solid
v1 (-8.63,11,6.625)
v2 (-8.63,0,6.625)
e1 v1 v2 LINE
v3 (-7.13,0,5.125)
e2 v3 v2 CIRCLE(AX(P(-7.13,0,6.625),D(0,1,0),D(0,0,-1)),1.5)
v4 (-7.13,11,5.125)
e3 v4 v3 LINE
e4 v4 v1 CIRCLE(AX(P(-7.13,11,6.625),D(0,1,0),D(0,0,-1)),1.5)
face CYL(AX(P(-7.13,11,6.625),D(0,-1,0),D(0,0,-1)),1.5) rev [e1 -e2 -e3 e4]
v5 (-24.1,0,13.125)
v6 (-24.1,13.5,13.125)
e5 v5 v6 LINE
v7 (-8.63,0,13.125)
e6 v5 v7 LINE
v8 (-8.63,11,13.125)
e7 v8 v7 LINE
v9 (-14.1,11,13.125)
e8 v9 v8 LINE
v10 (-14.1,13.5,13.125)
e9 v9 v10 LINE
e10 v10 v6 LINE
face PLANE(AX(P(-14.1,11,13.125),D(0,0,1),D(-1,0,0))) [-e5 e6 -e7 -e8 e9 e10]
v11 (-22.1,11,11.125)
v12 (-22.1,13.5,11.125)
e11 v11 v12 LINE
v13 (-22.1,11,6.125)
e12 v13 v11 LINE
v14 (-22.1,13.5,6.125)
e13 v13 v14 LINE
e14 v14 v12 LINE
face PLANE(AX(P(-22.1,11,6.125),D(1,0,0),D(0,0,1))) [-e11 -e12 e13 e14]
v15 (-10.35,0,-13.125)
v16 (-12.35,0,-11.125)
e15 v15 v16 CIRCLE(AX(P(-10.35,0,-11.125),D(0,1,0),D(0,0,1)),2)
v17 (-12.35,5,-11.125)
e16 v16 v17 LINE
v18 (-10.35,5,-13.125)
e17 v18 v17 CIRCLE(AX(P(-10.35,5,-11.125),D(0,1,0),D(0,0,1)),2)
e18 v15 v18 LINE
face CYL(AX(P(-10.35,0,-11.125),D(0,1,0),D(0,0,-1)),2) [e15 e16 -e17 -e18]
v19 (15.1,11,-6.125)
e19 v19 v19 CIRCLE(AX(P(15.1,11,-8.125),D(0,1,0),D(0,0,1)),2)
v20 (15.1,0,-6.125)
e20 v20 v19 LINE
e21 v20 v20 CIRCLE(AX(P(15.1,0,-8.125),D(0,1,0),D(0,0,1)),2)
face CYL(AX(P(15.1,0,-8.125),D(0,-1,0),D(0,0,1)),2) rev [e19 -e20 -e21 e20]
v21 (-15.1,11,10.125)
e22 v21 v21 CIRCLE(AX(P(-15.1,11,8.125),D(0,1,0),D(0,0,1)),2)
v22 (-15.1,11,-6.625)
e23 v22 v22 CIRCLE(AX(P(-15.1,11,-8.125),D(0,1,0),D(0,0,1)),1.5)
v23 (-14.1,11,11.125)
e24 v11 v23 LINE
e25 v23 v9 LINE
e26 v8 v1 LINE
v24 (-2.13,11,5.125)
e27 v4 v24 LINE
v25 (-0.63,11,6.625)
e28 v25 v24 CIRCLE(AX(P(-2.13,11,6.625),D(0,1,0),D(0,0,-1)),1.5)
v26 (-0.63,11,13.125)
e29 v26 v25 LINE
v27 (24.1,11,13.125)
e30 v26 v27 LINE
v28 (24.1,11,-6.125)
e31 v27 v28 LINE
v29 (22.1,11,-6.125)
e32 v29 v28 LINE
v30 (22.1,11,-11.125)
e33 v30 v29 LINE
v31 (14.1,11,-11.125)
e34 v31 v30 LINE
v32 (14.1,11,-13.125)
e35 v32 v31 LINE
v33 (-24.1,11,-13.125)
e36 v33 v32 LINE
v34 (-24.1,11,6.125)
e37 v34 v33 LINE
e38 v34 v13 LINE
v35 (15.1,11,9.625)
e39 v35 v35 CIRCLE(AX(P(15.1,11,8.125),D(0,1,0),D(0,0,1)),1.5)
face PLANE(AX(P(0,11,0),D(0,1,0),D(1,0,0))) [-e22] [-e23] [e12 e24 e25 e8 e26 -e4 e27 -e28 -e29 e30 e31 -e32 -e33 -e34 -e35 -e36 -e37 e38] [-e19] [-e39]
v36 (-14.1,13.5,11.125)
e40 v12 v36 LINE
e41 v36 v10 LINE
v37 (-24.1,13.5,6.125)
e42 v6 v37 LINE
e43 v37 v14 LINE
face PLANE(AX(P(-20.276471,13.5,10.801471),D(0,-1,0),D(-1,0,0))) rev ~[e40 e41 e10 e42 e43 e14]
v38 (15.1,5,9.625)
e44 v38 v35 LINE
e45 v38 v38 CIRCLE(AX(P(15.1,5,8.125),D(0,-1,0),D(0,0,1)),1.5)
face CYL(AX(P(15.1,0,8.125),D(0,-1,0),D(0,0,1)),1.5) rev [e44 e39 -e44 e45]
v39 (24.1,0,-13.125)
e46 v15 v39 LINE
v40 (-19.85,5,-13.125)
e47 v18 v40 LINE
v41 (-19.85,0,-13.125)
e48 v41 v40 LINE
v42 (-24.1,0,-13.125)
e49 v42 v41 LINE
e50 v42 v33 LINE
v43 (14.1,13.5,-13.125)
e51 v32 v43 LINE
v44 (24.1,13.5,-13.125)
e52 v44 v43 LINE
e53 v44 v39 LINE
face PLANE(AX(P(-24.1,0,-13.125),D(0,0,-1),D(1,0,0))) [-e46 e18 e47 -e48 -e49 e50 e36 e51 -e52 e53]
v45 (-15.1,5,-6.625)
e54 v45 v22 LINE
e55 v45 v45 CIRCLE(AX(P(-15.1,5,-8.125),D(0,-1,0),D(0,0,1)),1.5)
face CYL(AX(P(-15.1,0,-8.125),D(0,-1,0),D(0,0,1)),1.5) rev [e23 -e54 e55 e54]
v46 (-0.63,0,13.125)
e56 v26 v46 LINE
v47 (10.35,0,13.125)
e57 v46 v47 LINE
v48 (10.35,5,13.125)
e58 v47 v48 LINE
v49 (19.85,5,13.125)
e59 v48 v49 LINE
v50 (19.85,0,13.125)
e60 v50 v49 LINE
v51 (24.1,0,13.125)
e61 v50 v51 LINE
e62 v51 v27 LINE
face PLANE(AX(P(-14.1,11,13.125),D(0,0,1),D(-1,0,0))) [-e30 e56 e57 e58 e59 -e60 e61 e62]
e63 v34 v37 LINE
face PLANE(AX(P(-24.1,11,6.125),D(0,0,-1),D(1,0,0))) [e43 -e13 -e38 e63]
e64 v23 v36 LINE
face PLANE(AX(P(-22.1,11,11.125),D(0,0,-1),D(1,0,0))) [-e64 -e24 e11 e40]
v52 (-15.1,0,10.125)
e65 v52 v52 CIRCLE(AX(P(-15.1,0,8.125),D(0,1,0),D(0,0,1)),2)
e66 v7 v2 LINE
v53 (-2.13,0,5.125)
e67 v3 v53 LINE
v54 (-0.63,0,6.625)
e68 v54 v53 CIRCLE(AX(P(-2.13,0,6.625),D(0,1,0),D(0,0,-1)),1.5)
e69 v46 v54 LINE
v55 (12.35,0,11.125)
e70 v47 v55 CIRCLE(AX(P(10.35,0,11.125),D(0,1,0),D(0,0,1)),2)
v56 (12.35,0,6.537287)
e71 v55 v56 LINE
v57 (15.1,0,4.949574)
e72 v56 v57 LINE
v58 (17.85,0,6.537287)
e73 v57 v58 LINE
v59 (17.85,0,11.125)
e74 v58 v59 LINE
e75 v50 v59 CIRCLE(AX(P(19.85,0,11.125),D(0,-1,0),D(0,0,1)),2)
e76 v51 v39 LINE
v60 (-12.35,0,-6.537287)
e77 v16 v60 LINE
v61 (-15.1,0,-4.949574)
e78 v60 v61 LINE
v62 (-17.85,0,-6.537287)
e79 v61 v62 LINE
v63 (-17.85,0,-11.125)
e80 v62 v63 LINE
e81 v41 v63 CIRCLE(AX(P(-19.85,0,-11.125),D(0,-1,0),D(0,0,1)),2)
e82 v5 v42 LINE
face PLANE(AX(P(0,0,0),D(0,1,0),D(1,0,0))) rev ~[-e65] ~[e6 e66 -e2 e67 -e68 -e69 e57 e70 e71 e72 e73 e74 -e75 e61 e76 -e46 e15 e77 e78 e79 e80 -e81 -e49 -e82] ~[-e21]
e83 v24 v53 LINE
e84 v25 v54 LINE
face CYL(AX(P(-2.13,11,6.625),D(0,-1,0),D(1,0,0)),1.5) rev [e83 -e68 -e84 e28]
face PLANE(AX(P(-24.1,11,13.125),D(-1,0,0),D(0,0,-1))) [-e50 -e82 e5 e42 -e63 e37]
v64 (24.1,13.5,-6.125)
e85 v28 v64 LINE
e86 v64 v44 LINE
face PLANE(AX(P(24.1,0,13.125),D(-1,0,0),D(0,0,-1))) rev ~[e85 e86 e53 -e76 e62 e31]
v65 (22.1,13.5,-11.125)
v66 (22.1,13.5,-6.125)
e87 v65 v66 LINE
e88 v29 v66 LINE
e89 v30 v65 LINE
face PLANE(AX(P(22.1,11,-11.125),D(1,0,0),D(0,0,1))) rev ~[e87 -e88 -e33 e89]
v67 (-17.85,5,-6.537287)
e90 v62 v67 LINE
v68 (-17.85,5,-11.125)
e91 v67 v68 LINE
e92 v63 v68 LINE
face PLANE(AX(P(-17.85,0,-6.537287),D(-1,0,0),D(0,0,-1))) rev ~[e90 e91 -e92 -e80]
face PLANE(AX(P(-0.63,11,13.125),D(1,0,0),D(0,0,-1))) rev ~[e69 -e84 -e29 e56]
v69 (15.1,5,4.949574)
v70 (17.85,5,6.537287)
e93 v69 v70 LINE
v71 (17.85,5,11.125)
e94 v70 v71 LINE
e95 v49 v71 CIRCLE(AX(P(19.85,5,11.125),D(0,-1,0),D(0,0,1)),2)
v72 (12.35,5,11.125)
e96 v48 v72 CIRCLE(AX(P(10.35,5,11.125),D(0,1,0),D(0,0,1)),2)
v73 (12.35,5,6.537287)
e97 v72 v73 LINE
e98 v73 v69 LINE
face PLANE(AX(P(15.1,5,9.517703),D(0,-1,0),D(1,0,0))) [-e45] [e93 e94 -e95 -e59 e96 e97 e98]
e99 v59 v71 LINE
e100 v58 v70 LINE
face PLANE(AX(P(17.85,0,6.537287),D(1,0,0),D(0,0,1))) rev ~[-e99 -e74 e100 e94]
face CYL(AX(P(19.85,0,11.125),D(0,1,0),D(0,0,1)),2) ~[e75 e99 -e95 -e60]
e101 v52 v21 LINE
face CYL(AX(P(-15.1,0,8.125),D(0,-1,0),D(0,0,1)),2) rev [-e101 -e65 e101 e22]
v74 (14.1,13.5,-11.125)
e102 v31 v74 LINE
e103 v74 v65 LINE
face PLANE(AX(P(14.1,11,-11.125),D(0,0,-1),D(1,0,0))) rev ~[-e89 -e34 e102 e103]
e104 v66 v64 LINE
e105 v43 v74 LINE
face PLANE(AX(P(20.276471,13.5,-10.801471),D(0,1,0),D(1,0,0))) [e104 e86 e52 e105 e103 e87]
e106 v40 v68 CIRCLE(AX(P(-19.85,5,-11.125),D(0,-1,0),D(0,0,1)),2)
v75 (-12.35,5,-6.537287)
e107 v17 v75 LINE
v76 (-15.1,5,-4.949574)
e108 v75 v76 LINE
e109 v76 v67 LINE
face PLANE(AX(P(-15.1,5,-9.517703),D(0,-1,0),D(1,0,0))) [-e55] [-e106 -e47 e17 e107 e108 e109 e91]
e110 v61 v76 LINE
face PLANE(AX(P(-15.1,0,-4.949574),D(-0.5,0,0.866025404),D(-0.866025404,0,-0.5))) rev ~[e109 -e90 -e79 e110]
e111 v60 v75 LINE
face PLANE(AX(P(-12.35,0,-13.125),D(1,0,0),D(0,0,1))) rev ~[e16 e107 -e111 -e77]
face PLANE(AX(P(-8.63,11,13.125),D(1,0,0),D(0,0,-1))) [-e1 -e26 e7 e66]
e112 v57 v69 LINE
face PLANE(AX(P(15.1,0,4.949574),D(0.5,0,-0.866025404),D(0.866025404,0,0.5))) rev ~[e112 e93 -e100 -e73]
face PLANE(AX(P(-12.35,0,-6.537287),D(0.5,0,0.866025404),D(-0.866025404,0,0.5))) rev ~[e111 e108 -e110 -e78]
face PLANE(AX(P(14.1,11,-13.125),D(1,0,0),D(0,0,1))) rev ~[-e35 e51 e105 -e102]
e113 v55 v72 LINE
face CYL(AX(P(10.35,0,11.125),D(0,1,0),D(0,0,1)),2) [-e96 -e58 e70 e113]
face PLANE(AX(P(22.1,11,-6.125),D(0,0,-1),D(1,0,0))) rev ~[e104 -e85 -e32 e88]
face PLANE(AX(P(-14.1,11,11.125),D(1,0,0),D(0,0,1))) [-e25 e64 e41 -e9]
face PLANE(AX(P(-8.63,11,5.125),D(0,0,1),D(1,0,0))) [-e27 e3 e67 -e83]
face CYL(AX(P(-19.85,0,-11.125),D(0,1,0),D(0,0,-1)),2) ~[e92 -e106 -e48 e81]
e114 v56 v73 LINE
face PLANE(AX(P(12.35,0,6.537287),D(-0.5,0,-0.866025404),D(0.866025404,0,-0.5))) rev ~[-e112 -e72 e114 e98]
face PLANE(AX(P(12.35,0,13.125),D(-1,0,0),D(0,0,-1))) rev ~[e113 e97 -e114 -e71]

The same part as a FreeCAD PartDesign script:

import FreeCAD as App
import Part
import Sketcher
from FreeCAD import Vector
Q = App.Units.Quantity


def edges_at(feature, points):
    """Names of the edges that pass closest to the given points."""
    edges = feature.Shape.Edges
    near = lambda p: min(range(len(edges)), key=lambda i: edges[i].distToShape(Part.Vertex(*p))[0])
    return sorted({f"Edge{near(p) + 1}" for p in points})

doc = App.newDocument("Part")
params = doc.addObject("Spreadsheet::Sheet", "Params")
for row, (alias, value) in enumerate([
    ("sketch1_diameter", "4 mm"),
    ("sketch1_diameter2", "3 mm"),
    ("sketch1_width", "48.2 mm"),
    ("sketch1_height", "26.25 mm"),
    ("pad1_length", "11 mm"),
    ("sketch2_width", "2 mm"),
    ("sketch2_width2", "10 mm"),
    ("sketch2_height", "7 mm"),
    ("pad2_length", "2.5 mm"),
    ("sketch3_width", "8 mm"),
    ("fillet_radius", "1.5 mm"),
    ("sketch4_width", "5.5 mm"),
    ("pocket2_length", "5 mm"),
    ("fillet2_radius", "2 mm"),
], start=1):
    params.set(f"A{row}", alias)
    params.set(f"B{row}", "=" + value)
    params.setAlias(f"B{row}", alias)

body = doc.addObject("PartDesign::Body", "Body")

# Sketch on XZ plane
sketch1 = body.newObject("Sketcher::SketchObject", "Sketch")
sketch1.AttachmentSupport = (doc.getObject("XZ_Plane"), [""])
sketch1.MapMode = "FlatFace"
sketch1.addGeometry([
    Part.LineSegment(Vector(-24.1, -13.125, 0), Vector(-24.1, 13.125, 0)),  # 0
    Part.LineSegment(Vector(-24.1, 13.125, 0), Vector(24.1, 13.125, 0)),  # 1
    Part.LineSegment(Vector(24.1, 13.125, 0), Vector(24.1, -13.125, 0)),  # 2
    Part.LineSegment(Vector(24.1, -13.125, 0), Vector(-24.1, -13.125, 0)),  # 3
    Part.Circle(Vector(-15.1, 8.125, 0), Vector(0, 0, 1), 2),  # 4
    Part.Circle(Vector(15.1, 8.125, 0), Vector(0, 0, 1), 1.5),  # 5
    Part.Circle(Vector(-15.1, -8.125, 0), Vector(0, 0, 1), 1.5),  # 6
    Part.Circle(Vector(15.1, -8.125, 0), Vector(0, 0, 1), 2),  # 7
], False)
sketch1.addConstraint([
    Sketcher.Constraint("Coincident", 0, 2, 1, 1),
    Sketcher.Constraint("Coincident", 1, 2, 2, 1),
    Sketcher.Constraint("Coincident", 2, 2, 3, 1),
    Sketcher.Constraint("Coincident", 3, 2, 0, 1),
    Sketcher.Constraint("Vertical", 0),
    Sketcher.Constraint("Horizontal", 1),
    Sketcher.Constraint("Vertical", 2),
    Sketcher.Constraint("Horizontal", 3),
    Sketcher.Constraint("Equal", 5, 6),
    Sketcher.Constraint("Equal", 4, 7),
    Sketcher.Constraint("Symmetric", 5, 3, 6, 3, -1, 1),
    Sketcher.Constraint("Symmetric", 4, 3, 7, 3, -1, 1),
    Sketcher.Constraint("Symmetric", 0, 2, 2, 2, -1, 1),
    Sketcher.Constraint("Symmetric", 4, 3, 5, 3, -2),
    Sketcher.Constraint("Diameter", 4, Q("4 mm")),
    Sketcher.Constraint("Diameter", 5, Q("3 mm")),
    Sketcher.Constraint("DistanceX", 1, 1, 1, 2, Q("48.2 mm")),
    Sketcher.Constraint("DistanceX", 0, 2, 4, 3, Q("9 mm")),
    Sketcher.Constraint("DistanceY", 4, 3, 0, 2, Q("5 mm")),
    Sketcher.Constraint("DistanceY", 0, 1, 0, 2, Q("26.25 mm")),
])
sketch1.setExpression("Constraints[14]", "Params.sketch1_diameter")
sketch1.setExpression("Constraints[15]", "Params.sketch1_diameter2")
sketch1.setExpression("Constraints[16]", "Params.sketch1_width")
sketch1.setExpression("Constraints[19]", "Params.sketch1_height")
pad1 = body.newObject("PartDesign::Pad", "Pad")
pad1.Profile = sketch1
pad1.setExpression("Length", "Params.pad1_length")
pad1.Reversed = True

# Sketch on XZ plane
sketch2 = body.newObject("Sketcher::SketchObject", "Sketch001")
sketch2.AttachmentSupport = (doc.getObject("XZ_Plane"), [""])
sketch2.MapMode = "FlatFace"
sketch2.AttachmentOffset = App.Placement(Vector(0, 0, -11), App.Rotation())
sketch2.addGeometry([
    Part.LineSegment(Vector(-22.1, 6.125, 0), Vector(-24.1, 6.125, 0)),  # 0
    Part.LineSegment(Vector(-24.1, 6.125, 0), Vector(-24.1, 13.125, 0)),  # 1
    Part.LineSegment(Vector(-24.1, 13.125, 0), Vector(-14.1, 13.125, 0)),  # 2
    Part.LineSegment(Vector(-14.1, 13.125, 0), Vector(-14.1, 11.125, 0)),  # 3
    Part.LineSegment(Vector(-14.1, 11.125, 0), Vector(-22.1, 11.125, 0)),  # 4
    Part.LineSegment(Vector(-22.1, 11.125, 0), Vector(-22.1, 6.125, 0)),  # 5
    Part.LineSegment(Vector(14.1, -13.125, 0), Vector(14.1, -11.125, 0)),  # 6
    Part.LineSegment(Vector(14.1, -11.125, 0), Vector(22.1, -11.125, 0)),  # 7
    Part.LineSegment(Vector(22.1, -11.125, 0), Vector(22.1, -6.125, 0)),  # 8
    Part.LineSegment(Vector(22.1, -6.125, 0), Vector(24.1, -6.125, 0)),  # 9
    Part.LineSegment(Vector(24.1, -6.125, 0), Vector(24.1, -13.125, 0)),  # 10
    Part.LineSegment(Vector(24.1, -13.125, 0), Vector(14.1, -13.125, 0)),  # 11
], False)
sketch2.addConstraint([
    Sketcher.Constraint("Coincident", 0, 2, 1, 1),
    Sketcher.Constraint("Coincident", 1, 2, 2, 1),
    Sketcher.Constraint("Coincident", 2, 2, 3, 1),
    Sketcher.Constraint("Coincident", 3, 2, 4, 1),
    Sketcher.Constraint("Coincident", 4, 2, 5, 1),
    Sketcher.Constraint("Coincident", 5, 2, 0, 1),
    Sketcher.Constraint("Coincident", 6, 2, 7, 1),
    Sketcher.Constraint("Coincident", 7, 2, 8, 1),
    Sketcher.Constraint("Coincident", 8, 2, 9, 1),
    Sketcher.Constraint("Coincident", 9, 2, 10, 1),
    Sketcher.Constraint("Coincident", 10, 2, 11, 1),
    Sketcher.Constraint("Coincident", 11, 2, 6, 1),
    Sketcher.Constraint("Horizontal", 0),
    Sketcher.Constraint("Vertical", 1),
    Sketcher.Constraint("Horizontal", 2),
    Sketcher.Constraint("Vertical", 3),
    Sketcher.Constraint("Horizontal", 4),
    Sketcher.Constraint("Vertical", 5),
    Sketcher.Constraint("Vertical", 6),
    Sketcher.Constraint("Horizontal", 7),
    Sketcher.Constraint("Vertical", 8),
    Sketcher.Constraint("Horizontal", 9),
    Sketcher.Constraint("Vertical", 10),
    Sketcher.Constraint("Horizontal", 11),
    Sketcher.Constraint("Symmetric", 3, 2, 6, 2, -1, 1),
    Sketcher.Constraint("Symmetric", 5, 2, 8, 2, -1, 1),
    Sketcher.Constraint("Symmetric", 1, 2, 10, 2, -1, 1),
    Sketcher.Constraint("Equal", 9, 3),
    Sketcher.Constraint("DistanceX", 0, 2, 0, 1, Q("2 mm")),
    Sketcher.Constraint("DistanceX", 2, 1, 2, 2, Q("10 mm")),
    Sketcher.Constraint("DistanceY", 1, 1, 1, 2, Q("7 mm")),
    Sketcher.Constraint("DistanceX", 0, 2, -1, 1, Q("24.1 mm")),
    Sketcher.Constraint("DistanceY", 6, 2, 3, 2, Q("22.25 mm")),
])
sketch2.setExpression("Constraints[28]", "Params.sketch2_width")
sketch2.setExpression("Constraints[29]", "Params.sketch2_width2")
sketch2.setExpression("Constraints[30]", "Params.sketch2_height")
pad2 = body.newObject("PartDesign::Pad", "Pad001")
pad2.Profile = sketch2
pad2.setExpression("Length", "Params.pad2_length")
pad2.Reversed = True

# Sketch on XZ plane
sketch3 = body.newObject("Sketcher::SketchObject", "Sketch002")
sketch3.AttachmentSupport = (doc.getObject("XZ_Plane"), [""])
sketch3.MapMode = "FlatFace"
sketch3.AttachmentOffset = App.Placement(Vector(0, 0, -11), App.Rotation())
sketch3.addGeometry([
    Part.LineSegment(Vector(-8.63, 5.125, 0), Vector(-8.63, 13.125, 0)),
    Part.LineSegment(Vector(-8.63, 13.125, 0), Vector(-0.63, 13.125, 0)),
    Part.LineSegment(Vector(-0.63, 13.125, 0), Vector(-0.63, 5.125, 0)),
    Part.LineSegment(Vector(-0.63, 5.125, 0), Vector(-8.63, 5.125, 0)),
], False)
sketch3.addConstraint([
    Sketcher.Constraint("Coincident", 0, 2, 1, 1),
    Sketcher.Constraint("Coincident", 1, 2, 2, 1),
    Sketcher.Constraint("Coincident", 2, 2, 3, 1),
    Sketcher.Constraint("Coincident", 3, 2, 0, 1),
    Sketcher.Constraint("Vertical", 0),
    Sketcher.Constraint("Horizontal", 1),
    Sketcher.Constraint("Vertical", 2),
    Sketcher.Constraint("Horizontal", 3),
    Sketcher.Constraint("Equal", 3, 0),
    Sketcher.Constraint("DistanceX", 1, 1, 1, 2, Q("8 mm")),
    Sketcher.Constraint("DistanceX", 0, 2, -1, 1, Q("8.63 mm")),
    Sketcher.Constraint("DistanceY", -1, 1, 0, 2, Q("13.125 mm")),
])
sketch3.setExpression("Constraints[9]", "Params.sketch3_width")
pocket1 = body.newObject("PartDesign::Pocket", "Pocket")
pocket1.Profile = sketch3
pocket1.Type = "ThroughAll"
pocket1.Reversed = True
doc.recompute()

fillet = body.newObject("PartDesign::Fillet", "Fillet")
fillet.Base = (pocket1, edges_at(pocket1, [(-8.63, 5.5, 5.125), (-0.63, 5.5, 5.125)]))
fillet.setExpression("Radius", "Params.fillet_radius")

# Sketch on XZ plane
sketch4 = body.newObject("Sketcher::SketchObject", "Sketch003")
sketch4.AttachmentSupport = (doc.getObject("XZ_Plane"), [""])
sketch4.MapMode = "FlatFace"
sketch4.addGeometry([
    Part.LineSegment(Vector(-17.85, -13.125, 0), Vector(-12.35, -13.125, 0)),  # 0
    Part.LineSegment(Vector(-12.35, -13.125, 0), Vector(-12.35, -6.537287, 0)),  # 1
    Part.LineSegment(Vector(-12.35, -6.537287, 0), Vector(-15.1, -4.949574, 0)),  # 2
    Part.LineSegment(Vector(-15.1, -4.949574, 0), Vector(-17.85, -6.537287, 0)),  # 3
    Part.LineSegment(Vector(-17.85, -6.537287, 0), Vector(-17.85, -13.125, 0)),  # 4
    Part.LineSegment(Vector(15.1, 4.949574, 0), Vector(17.85, 6.537287, 0)),  # 5
    Part.LineSegment(Vector(17.85, 6.537287, 0), Vector(17.85, 13.125, 0)),  # 6
    Part.LineSegment(Vector(17.85, 13.125, 0), Vector(12.35, 13.125, 0)),  # 7
    Part.LineSegment(Vector(12.35, 13.125, 0), Vector(12.35, 6.537287, 0)),  # 8
    Part.LineSegment(Vector(12.35, 6.537287, 0), Vector(15.1, 4.949574, 0)),  # 9
], False)
sketch4.addConstraint([
    Sketcher.Constraint("Coincident", 0, 2, 1, 1),
    Sketcher.Constraint("Coincident", 1, 2, 2, 1),
    Sketcher.Constraint("Coincident", 2, 2, 3, 1),
    Sketcher.Constraint("Coincident", 3, 2, 4, 1),
    Sketcher.Constraint("Coincident", 4, 2, 0, 1),
    Sketcher.Constraint("Coincident", 5, 2, 6, 1),
    Sketcher.Constraint("Coincident", 6, 2, 7, 1),
    Sketcher.Constraint("Coincident", 7, 2, 8, 1),
    Sketcher.Constraint("Coincident", 8, 2, 9, 1),
    Sketcher.Constraint("Coincident", 9, 2, 5, 1),
    Sketcher.Constraint("Horizontal", 0),
    Sketcher.Constraint("Vertical", 1),
    Sketcher.Constraint("Vertical", 4),
    Sketcher.Constraint("Vertical", 6),
    Sketcher.Constraint("Horizontal", 7),
    Sketcher.Constraint("Vertical", 8),
    Sketcher.Constraint("Symmetric", 3, 2, 5, 2, -1, 1),
    Sketcher.Constraint("Symmetric", 0, 2, 7, 2, -1, 1),
    Sketcher.Constraint("Symmetric", 2, 2, 9, 2, -1, 1),
    Sketcher.Constraint("Parallel", 2, 9),
    Sketcher.Constraint("Horizontal", 1, 2, 3, 2),
    Sketcher.Constraint("Equal", 2, 3),
    Sketcher.Constraint("Angle", 2, Q("150 deg")),
    Sketcher.Constraint("DistanceX", 0, 1, 0, 2, Q("5.5 mm")),
    Sketcher.Constraint("DistanceX", 2, 2, -1, 1, Q("15.1 mm")),
    Sketcher.Constraint("DistanceY", 0, 2, 6, 2, Q("26.25 mm")),
    Sketcher.Constraint("DistanceY", 1, 1, 1, 2, Q("6.587713 mm")),
])
sketch4.setExpression("Constraints[23]", "Params.sketch4_width")
pocket2 = body.newObject("PartDesign::Pocket", "Pocket001")
pocket2.Profile = sketch4
pocket2.setExpression("Length", "Params.pocket2_length")
doc.recompute()

fillet2 = body.newObject("PartDesign::Fillet", "Fillet001")
fillet2.Base = (pocket2, edges_at(pocket2, [
    (-12.35, 2.5, -13.125),
    (-17.85, 2.5, -13.125),
    (12.35, 2.5, 13.125),
    (17.85, 2.5, 13.125),
]))
fillet2.setExpression("Radius", "Params.fillet2_radius")

doc.recompute()
